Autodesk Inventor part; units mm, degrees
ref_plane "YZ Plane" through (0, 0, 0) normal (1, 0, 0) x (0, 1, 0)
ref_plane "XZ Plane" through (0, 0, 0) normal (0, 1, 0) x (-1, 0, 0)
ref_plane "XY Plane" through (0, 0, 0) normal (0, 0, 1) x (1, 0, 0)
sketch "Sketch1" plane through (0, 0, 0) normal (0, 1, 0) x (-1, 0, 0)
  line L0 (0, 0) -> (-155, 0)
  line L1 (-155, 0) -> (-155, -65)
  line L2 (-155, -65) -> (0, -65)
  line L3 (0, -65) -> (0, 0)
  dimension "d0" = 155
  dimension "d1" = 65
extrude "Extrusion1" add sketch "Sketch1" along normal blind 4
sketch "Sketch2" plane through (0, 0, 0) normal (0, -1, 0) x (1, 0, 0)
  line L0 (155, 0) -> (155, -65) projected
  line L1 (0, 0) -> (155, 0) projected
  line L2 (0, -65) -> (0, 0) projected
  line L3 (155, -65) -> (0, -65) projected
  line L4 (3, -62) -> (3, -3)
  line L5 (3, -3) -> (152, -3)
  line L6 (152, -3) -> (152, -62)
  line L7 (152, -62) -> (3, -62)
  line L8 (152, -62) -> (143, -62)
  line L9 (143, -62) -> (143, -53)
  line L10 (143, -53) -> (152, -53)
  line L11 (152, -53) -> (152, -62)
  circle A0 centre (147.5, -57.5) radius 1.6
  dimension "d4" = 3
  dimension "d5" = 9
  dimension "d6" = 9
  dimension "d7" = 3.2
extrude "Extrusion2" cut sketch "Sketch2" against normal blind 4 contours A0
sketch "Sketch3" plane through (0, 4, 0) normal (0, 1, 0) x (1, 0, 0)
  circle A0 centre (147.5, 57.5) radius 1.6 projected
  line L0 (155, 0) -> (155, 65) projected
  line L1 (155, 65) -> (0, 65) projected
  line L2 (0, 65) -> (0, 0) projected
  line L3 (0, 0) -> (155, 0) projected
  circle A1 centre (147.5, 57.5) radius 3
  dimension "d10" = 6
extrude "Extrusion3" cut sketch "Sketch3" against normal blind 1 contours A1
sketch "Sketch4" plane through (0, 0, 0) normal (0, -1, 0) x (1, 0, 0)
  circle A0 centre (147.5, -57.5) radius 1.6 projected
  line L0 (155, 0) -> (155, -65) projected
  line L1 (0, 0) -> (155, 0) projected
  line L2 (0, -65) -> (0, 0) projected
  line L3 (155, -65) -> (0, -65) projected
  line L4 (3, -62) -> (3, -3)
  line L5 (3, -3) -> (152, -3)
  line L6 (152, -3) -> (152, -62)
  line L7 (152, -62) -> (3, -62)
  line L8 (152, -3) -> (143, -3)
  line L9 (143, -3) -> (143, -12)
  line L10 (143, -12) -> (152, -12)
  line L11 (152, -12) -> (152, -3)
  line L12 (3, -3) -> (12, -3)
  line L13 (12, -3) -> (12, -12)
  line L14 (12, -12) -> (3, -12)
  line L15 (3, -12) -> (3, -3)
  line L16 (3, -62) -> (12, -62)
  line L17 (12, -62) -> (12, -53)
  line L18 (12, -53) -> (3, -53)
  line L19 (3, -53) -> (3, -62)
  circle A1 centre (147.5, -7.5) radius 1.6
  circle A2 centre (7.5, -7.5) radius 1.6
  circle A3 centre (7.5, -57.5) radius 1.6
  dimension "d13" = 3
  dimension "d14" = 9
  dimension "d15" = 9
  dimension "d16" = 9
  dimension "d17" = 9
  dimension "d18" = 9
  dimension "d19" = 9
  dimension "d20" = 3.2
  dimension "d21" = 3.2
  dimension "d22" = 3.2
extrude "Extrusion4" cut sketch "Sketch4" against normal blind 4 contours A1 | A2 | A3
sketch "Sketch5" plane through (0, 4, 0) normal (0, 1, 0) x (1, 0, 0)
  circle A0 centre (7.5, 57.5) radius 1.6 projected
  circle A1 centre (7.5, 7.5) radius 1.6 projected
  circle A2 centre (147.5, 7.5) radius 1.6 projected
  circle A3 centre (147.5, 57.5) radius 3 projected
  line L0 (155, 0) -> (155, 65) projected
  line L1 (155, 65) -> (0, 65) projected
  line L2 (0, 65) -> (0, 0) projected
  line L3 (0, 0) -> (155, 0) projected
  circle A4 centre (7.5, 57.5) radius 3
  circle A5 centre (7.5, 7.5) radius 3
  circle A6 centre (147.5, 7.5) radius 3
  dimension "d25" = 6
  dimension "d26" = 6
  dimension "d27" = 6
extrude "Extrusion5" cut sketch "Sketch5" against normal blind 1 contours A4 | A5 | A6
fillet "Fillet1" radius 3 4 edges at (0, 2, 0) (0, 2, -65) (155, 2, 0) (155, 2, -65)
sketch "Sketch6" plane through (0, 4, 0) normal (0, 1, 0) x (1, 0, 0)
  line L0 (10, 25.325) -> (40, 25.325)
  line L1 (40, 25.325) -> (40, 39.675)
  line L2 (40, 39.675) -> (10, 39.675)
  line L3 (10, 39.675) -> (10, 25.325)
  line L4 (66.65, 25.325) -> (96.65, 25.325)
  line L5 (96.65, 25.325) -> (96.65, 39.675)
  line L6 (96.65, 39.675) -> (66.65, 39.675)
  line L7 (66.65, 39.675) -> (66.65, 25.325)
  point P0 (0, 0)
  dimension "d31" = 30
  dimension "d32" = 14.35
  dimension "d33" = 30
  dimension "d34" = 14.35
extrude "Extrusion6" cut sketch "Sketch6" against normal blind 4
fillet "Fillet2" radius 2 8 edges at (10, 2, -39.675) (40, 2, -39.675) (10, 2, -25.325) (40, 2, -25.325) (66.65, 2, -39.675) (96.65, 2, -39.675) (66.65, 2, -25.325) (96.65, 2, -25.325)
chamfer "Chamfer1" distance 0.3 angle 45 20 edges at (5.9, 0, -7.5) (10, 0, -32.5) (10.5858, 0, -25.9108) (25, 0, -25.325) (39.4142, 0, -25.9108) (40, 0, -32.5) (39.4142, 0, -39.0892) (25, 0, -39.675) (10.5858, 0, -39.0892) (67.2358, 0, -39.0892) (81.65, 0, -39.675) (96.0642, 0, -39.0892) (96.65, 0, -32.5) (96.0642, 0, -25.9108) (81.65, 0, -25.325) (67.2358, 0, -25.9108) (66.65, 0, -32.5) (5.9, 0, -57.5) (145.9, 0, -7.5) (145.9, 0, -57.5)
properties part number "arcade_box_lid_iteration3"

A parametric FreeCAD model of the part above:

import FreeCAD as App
import Part
import Sketcher
from FreeCAD import Vector
Q = App.Units.Quantity


def edges_at(feature, points):
    """Names of the edges that pass closest to the given points."""
    edges = feature.Shape.Edges
    near = lambda p: min(range(len(edges)), key=lambda i: edges[i].distToShape(Part.Vertex(*p))[0])
    return sorted({f"Edge{near(p) + 1}" for p in points})


def add_polygon(sketch, points):
    """Adds a closed chain of lines whose ends are joined by coincident constraints."""
    first, n = sketch.GeometryCount, len(points)
    for a, b in zip(points, points[1:] + points[:1]):
        sketch.addGeometry(Part.LineSegment(App.Vector(*a, 0), App.Vector(*b, 0)), False)
    for i in range(n):
        sketch.addConstraint(Sketcher.Constraint("Coincident", first + i, 2, first + (i + 1) % n, 1))

doc = App.newDocument("Part")
body = doc.addObject("PartDesign::Body", "Body")

sketch1 = body.newObject("Sketcher::SketchObject", "Sketch")
sketch1.AttachmentSupport = (doc.getObject("XZ_Plane"), [""])
sketch1.MapMode = "FlatFace"
add_polygon(sketch1, [(0, -65), (0, 0), (155, 0), (155, -65)])
sketch1.addConstraint(Sketcher.Constraint("Vertical", 0))
sketch1.addConstraint(Sketcher.Constraint("Horizontal", 1))
sketch1.addConstraint(Sketcher.Constraint("Vertical", 2))
sketch1.addConstraint(Sketcher.Constraint("Horizontal", 3))
sketch1.addConstraint(Sketcher.Constraint("Coincident", 0, 2, -1, 1))
sketch1.addConstraint(Sketcher.Constraint("DistanceX", 1, 1, 1, 2, Q("155 mm")))
sketch1.addConstraint(Sketcher.Constraint("DistanceY", 0, 1, 0, 2, Q("65 mm")))
pad1 = body.newObject("PartDesign::Pad", "Pad")
pad1.Profile = sketch1
pad1.Length = 4
pad1.Reversed = True

sketch2 = body.newObject("Sketcher::SketchObject", "Sketch001")
sketch2.AttachmentSupport = (doc.getObject("XZ_Plane"), [""])
sketch2.MapMode = "FlatFace"
sketch2.addGeometry(Part.Circle(Vector(147.5, -57.5, 0), Vector(0, 0, 1), 1.6), False)
sketch2.addConstraint(Sketcher.Constraint("Diameter", 0, Q("3.2 mm")))
sketch2.addConstraint(Sketcher.Constraint("DistanceX", -1, 1, 0, 3, Q("147.5 mm")))
sketch2.addConstraint(Sketcher.Constraint("DistanceY", 0, 3, -1, 1, Q("57.5 mm")))
pocket1 = body.newObject("PartDesign::Pocket", "Pocket")
pocket1.Profile = sketch2
pocket1.Length = 4

sketch3 = body.newObject("Sketcher::SketchObject", "Sketch002")
sketch3.AttachmentSupport = (doc.getObject("XZ_Plane"), [""])
sketch3.MapMode = "FlatFace"
sketch3.AttachmentOffset = App.Placement(Vector(0, 0, -4), App.Rotation())
sketch3.addGeometry(Part.Circle(Vector(147.5, -57.5, 0), Vector(0, 0, 1), 3), False)
sketch3.addGeometry(Part.Circle(Vector(147.5, -57.5, 0), Vector(0, 0, 1), 1.6), False)
sketch3.addConstraint(Sketcher.Constraint("Coincident", 1, 3, 0, 3))
sketch3.addConstraint(Sketcher.Constraint("Diameter", 0, Q("6 mm")))
sketch3.addConstraint(Sketcher.Constraint("Diameter", 1, Q("3.2 mm")))
sketch3.addConstraint(Sketcher.Constraint("DistanceX", -1, 1, 0, 3, Q("147.5 mm")))
sketch3.addConstraint(Sketcher.Constraint("DistanceY", 0, 3, -1, 1, Q("57.5 mm")))
pocket2 = body.newObject("PartDesign::Pocket", "Pocket001")
pocket2.Profile = sketch3
pocket2.Length = 1
pocket2.Reversed = True

sketch4 = body.newObject("Sketcher::SketchObject", "Sketch003")
sketch4.AttachmentSupport = (doc.getObject("XZ_Plane"), [""])
sketch4.MapMode = "FlatFace"
sketch4.addGeometry(Part.Circle(Vector(147.5, -7.5, 0), Vector(0, 0, 1), 1.6), False)
sketch4.addGeometry(Part.Circle(Vector(7.5, -7.5, 0), Vector(0, 0, 1), 1.6), False)
sketch4.addGeometry(Part.Circle(Vector(7.5, -57.5, 0), Vector(0, 0, 1), 1.6), False)
sketch4.addConstraint(Sketcher.Constraint("Equal", 0, 1))
sketch4.addConstraint(Sketcher.Constraint("Equal", 1, 2))
sketch4.addConstraint(Sketcher.Constraint("Horizontal", 0, 3, 1, 3))
sketch4.addConstraint(Sketcher.Constraint("Vertical", 1, 3, 2, 3))
sketch4.addConstraint(Sketcher.Constraint("Diameter", 0, Q("3.2 mm")))
sketch4.addConstraint(Sketcher.Constraint("DistanceX", 1, 3, 0, 3, Q("140 mm")))
sketch4.addConstraint(Sketcher.Constraint("DistanceY", 2, 3, 1, 3, Q("50 mm")))
sketch4.addConstraint(Sketcher.Constraint("DistanceX", -1, 1, 0, 3, Q("147.5 mm")))
sketch4.addConstraint(Sketcher.Constraint("DistanceY", 0, 3, -1, 1, Q("7.5 mm")))
pocket3 = body.newObject("PartDesign::Pocket", "Pocket002")
pocket3.Profile = sketch4
pocket3.Length = 4

sketch5 = body.newObject("Sketcher::SketchObject", "Sketch004")
sketch5.AttachmentSupport = (doc.getObject("XZ_Plane"), [""])
sketch5.MapMode = "FlatFace"
sketch5.AttachmentOffset = App.Placement(Vector(0, 0, -4), App.Rotation())
sketch5.addGeometry(Part.Circle(Vector(7.5, -57.5, 0), Vector(0, 0, 1), 3), False)
sketch5.addGeometry(Part.Circle(Vector(7.5, -57.5, 0), Vector(0, 0, 1), 1.6), False)
sketch5.addGeometry(Part.Circle(Vector(7.5, -7.5, 0), Vector(0, 0, 1), 3), False)
sketch5.addGeometry(Part.Circle(Vector(7.5, -7.5, 0), Vector(0, 0, 1), 1.6), False)
sketch5.addGeometry(Part.Circle(Vector(147.5, -7.5, 0), Vector(0, 0, 1), 3), False)
sketch5.addGeometry(Part.Circle(Vector(147.5, -7.5, 0), Vector(0, 0, 1), 1.6), False)
sketch5.addConstraint(Sketcher.Constraint("Coincident", 1, 3, 0, 3))
sketch5.addConstraint(Sketcher.Constraint("Coincident", 3, 3, 2, 3))
sketch5.addConstraint(Sketcher.Constraint("Coincident", 5, 3, 4, 3))
sketch5.addConstraint(Sketcher.Constraint("Equal", 0, 2))
sketch5.addConstraint(Sketcher.Constraint("Equal", 1, 3))
sketch5.addConstraint(Sketcher.Constraint("Equal", 2, 4))
sketch5.addConstraint(Sketcher.Constraint("Equal", 3, 5))
sketch5.addConstraint(Sketcher.Constraint("Horizontal", 3, 3, 4, 3))
sketch5.addConstraint(Sketcher.Constraint("Vertical", 1, 3, 2, 3))
sketch5.addConstraint(Sketcher.Constraint("Diameter", 0, Q("6 mm")))
sketch5.addConstraint(Sketcher.Constraint("Diameter", 1, Q("3.2 mm")))
sketch5.addConstraint(Sketcher.Constraint("DistanceY", 0, 3, 2, 3, Q("50 mm")))
sketch5.addConstraint(Sketcher.Constraint("DistanceX", 2, 3, 4, 3, Q("140 mm")))
sketch5.addConstraint(Sketcher.Constraint("DistanceX", -1, 1, 0, 3, Q("7.5 mm")))
sketch5.addConstraint(Sketcher.Constraint("DistanceY", 0, 3, -1, 1, Q("57.5 mm")))
pocket4 = body.newObject("PartDesign::Pocket", "Pocket003")
pocket4.Profile = sketch5
pocket4.Length = 1
pocket4.Reversed = True
doc.recompute()

fillet = body.newObject("PartDesign::Fillet", "Fillet")
fillet.Base = (pocket4, edges_at(pocket4, [
    (0, 2, 0),
    (0, 2, -65),
    (155, 2, 0),
    (155, 2, -65),
]))
fillet.Radius = 3

sketch6 = body.newObject("Sketcher::SketchObject", "Sketch005")
sketch6.AttachmentSupport = (doc.getObject("XZ_Plane"), [""])
sketch6.MapMode = "FlatFace"
sketch6.AttachmentOffset = App.Placement(Vector(0, 0, -4), App.Rotation())
add_polygon(sketch6, [(10, -40), (10, -25), (40, -25), (40, -40)])
add_polygon(sketch6, [(67, -40), (67, -25), (97, -25), (97, -40)])
sketch6.addConstraint(Sketcher.Constraint("Vertical", 0))
sketch6.addConstraint(Sketcher.Constraint("Horizontal", 1))
sketch6.addConstraint(Sketcher.Constraint("Vertical", 2))
sketch6.addConstraint(Sketcher.Constraint("Horizontal", 3))
sketch6.addConstraint(Sketcher.Constraint("Vertical", 4))
sketch6.addConstraint(Sketcher.Constraint("Horizontal", 5))
sketch6.addConstraint(Sketcher.Constraint("Vertical", 6))
sketch6.addConstraint(Sketcher.Constraint("Horizontal", 7))
sketch6.addConstraint(Sketcher.Constraint("Horizontal", 1, 2, 4, 2))
sketch6.addConstraint(Sketcher.Constraint("Horizontal", 3, 2, 6, 2))
sketch6.addConstraint(Sketcher.Constraint("Equal", 3, 5))
sketch6.addConstraint(Sketcher.Constraint("DistanceX", 1, 1, 1, 2, Q("30 mm")))
sketch6.addConstraint(Sketcher.Constraint("DistanceY", 0, 1, 0, 2, Q("14.35 mm")))
sketch6.addConstraint(Sketcher.Constraint("DistanceX", -1, 1, 0, 2, Q("10 mm")))
sketch6.addConstraint(Sketcher.Constraint("DistanceX", -1, 1, 4, 2, Q("66.65 mm")))
sketch6.addConstraint(Sketcher.Constraint("DistanceY", 0, 2, -1, 1, Q("25.325 mm")))
pocket5 = body.newObject("PartDesign::Pocket", "Pocket004")
pocket5.Profile = sketch6
pocket5.Length = 4
pocket5.Reversed = True
doc.recompute()

fillet2 = body.newObject("PartDesign::Fillet", "Fillet001")
fillet2.Base = (pocket5, edges_at(pocket5, [
    (10, 2, -39.675),
    (40, 2, -39.675),
    (10, 2, -25.325),
    (40, 2, -25.325),
    (66.65, 2, -39.675),
    (96.65, 2, -39.675),
    (66.65, 2, -25.325),
    (96.65, 2, -25.325),
]))
fillet2.Radius = 2
doc.recompute()

chamfer = body.newObject("PartDesign::Chamfer", "Chamfer")
chamfer.Base = (fillet2, edges_at(fillet2, [
    (5.9, 0, -7.5),
    (10, 0, -32.5),
    (10.586, 0, -25.911),
    (25, 0, -25.325),
    (39.414, 0, -25.911),
    (40, 0, -32.5),
    (39.414, 0, -39.089),
    (25, 0, -39.675),
    (10.586, 0, -39.089),
    (67.236, 0, -39.089),
    (81.65, 0, -39.675),
    (96.064, 0, -39.089),
    (96.65, 0, -32.5),
    (96.064, 0, -25.911),
    (81.65, 0, -25.325),
    (67.236, 0, -25.911),
    (66.65, 0, -32.5),
    (5.9, 0, -57.5),
    (145.9, 0, -7.5),
    (145.9, 0, -57.5),
]))
chamfer.Size = 0.3

doc.recompute()
